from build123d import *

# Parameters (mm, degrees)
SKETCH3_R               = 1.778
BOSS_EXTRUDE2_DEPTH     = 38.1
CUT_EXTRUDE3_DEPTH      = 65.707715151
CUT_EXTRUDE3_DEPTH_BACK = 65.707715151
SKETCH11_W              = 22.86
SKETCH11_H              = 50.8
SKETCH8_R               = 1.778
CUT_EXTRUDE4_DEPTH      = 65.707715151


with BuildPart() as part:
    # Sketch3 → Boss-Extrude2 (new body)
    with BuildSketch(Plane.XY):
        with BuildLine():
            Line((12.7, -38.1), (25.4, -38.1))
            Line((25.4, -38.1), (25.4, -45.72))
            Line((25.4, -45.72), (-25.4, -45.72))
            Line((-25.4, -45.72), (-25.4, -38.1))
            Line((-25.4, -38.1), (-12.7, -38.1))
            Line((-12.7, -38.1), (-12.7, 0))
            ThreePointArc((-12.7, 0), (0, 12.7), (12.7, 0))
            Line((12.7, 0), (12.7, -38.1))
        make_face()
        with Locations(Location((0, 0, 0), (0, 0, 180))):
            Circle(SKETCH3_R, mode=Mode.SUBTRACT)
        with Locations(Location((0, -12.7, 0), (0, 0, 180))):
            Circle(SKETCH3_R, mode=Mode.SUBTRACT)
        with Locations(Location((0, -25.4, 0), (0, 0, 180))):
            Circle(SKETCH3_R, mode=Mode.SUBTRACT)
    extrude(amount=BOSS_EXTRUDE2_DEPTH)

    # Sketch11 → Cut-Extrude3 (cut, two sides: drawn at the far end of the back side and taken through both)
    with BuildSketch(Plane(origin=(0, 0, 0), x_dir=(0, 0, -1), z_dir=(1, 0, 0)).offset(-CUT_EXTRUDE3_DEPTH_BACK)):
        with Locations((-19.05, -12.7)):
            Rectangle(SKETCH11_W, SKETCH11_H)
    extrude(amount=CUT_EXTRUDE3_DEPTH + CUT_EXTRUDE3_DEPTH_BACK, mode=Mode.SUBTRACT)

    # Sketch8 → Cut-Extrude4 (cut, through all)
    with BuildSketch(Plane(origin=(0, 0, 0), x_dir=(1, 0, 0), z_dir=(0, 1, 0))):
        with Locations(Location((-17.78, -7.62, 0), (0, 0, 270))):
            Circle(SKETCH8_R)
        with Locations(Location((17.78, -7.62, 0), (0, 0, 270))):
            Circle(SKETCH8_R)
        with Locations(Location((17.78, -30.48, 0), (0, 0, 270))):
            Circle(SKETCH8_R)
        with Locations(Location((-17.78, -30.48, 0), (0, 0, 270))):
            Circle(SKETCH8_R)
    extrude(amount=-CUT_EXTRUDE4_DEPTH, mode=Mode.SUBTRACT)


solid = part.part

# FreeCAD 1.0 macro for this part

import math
import FreeCAD as App
import Part
import Sketcher
Q = App.Units.Quantity


def add_polygon(sketch, points):
    """Adds a closed chain of lines whose ends are joined by coincident constraints."""
    first, n = sketch.GeometryCount, len(points)
    for a, b in zip(points, points[1:] + points[:1]):
        sketch.addGeometry(Part.LineSegment(App.Vector(*a, 0), App.Vector(*b, 0)), False)
    for i in range(n):
        sketch.addConstraint(Sketcher.Constraint("Coincident", first + i, 2, first + (i + 1) % n, 1))

doc = App.newDocument("Part")
body = doc.addObject("PartDesign::Body", "Body")

# Sketch on XY plane
sketch1 = body.newObject("Sketcher::SketchObject", "Sketch")
sketch1.AttachmentSupport = (doc.getObject("XY_Plane"), [""])
sketch1.MapMode = "FlatFace"
sketch1.addGeometry([
    Part.LineSegment(App.Vector(25.4, -38.1, 0), App.Vector(12.7, -38.1, 0)),  # 0
    Part.LineSegment(App.Vector(12.7, -38.1, 0), App.Vector(12.7, 0, 0)),  # 1
    Part.ArcOfCircle(Part.Circle(App.Vector(0, 0, 0), App.Vector(0, 0, 1), 12.7), math.radians(0), math.radians(180)),  # 2
    Part.LineSegment(App.Vector(-12.7, 0, 0), App.Vector(-12.7, -38.1, 0)),  # 3
    Part.LineSegment(App.Vector(-12.7, -38.1, 0), App.Vector(-25.4, -38.1, 0)),  # 4
    Part.LineSegment(App.Vector(-25.4, -38.1, 0), App.Vector(-25.4, -45.7, 0)),  # 5
    Part.LineSegment(App.Vector(-25.4, -45.7, 0), App.Vector(25.4, -45.7, 0)),  # 6
    Part.LineSegment(App.Vector(25.4, -45.7, 0), App.Vector(25.4, -38.1, 0)),  # 7
    Part.Circle(App.Vector(0, -25.4, 0), App.Vector(0, 0, 1), 1.8),  # 8
    Part.Circle(App.Vector(0, -12.7, 0), App.Vector(0, 0, 1), 1.8),  # 9
    Part.Circle(App.Vector(0, 0, 0), App.Vector(0, 0, 1), 1.8),  # 10
], False)
sketch1.addConstraint([
    Sketcher.Constraint("Coincident", 0, 2, 1, 1),
    Sketcher.Constraint("Tangent", 1, 2, 2, 1),
    Sketcher.Constraint("Tangent", 2, 2, 3, 1),
    Sketcher.Constraint("Coincident", 3, 2, 4, 1),
    Sketcher.Constraint("Coincident", 4, 2, 5, 1),
    Sketcher.Constraint("Coincident", 5, 2, 6, 1),
    Sketcher.Constraint("Coincident", 6, 2, 7, 1),
    Sketcher.Constraint("Coincident", 7, 2, 0, 1),
    Sketcher.Constraint("Horizontal", 0),
    Sketcher.Constraint("Vertical", 1),
    Sketcher.Constraint("Vertical", 3),
    Sketcher.Constraint("Horizontal", 4),
    Sketcher.Constraint("Vertical", 5),
    Sketcher.Constraint("Horizontal", 6),
    Sketcher.Constraint("Vertical", 7),
    Sketcher.Constraint("Coincident", 2, 3, -1, 1),
    Sketcher.Constraint("Coincident", 10, 3, -1, 1),
    Sketcher.Constraint("Equal", 8, 9),
    Sketcher.Constraint("Equal", 9, 10),
    Sketcher.Constraint("Symmetric", 4, 2, 7, 2, -2),
    Sketcher.Constraint("PointOnObject", 8, 3, -2),
    Sketcher.Constraint("PointOnObject", 9, 3, -2),
    Sketcher.Constraint("Radius", 2, Q("0.5 in")),
    Sketcher.Constraint("Diameter", 8, Q("0.14 in")),
    Sketcher.Constraint("DistanceX", 6, 1, 6, 2, Q("2 in")),
    Sketcher.Constraint("DistanceY", 1, 1, 1, 2, Q("1.5 in")),
    Sketcher.Constraint("DistanceY", 5, 2, 5, 1, Q("0.3 in")),
    Sketcher.Constraint("DistanceY", 8, 3, -1, 1, Q("1 in")),
    Sketcher.Constraint("DistanceY", 0, 2, 9, 3, Q("1 in")),
])
pad1 = body.newObject("PartDesign::Pad", "Pad")
pad1.Profile = sketch1
pad1.Length = Q("1.5 in")

# Sketch on YZ plane
sketch2 = body.newObject("Sketcher::SketchObject", "Sketch001")
sketch2.AttachmentSupport = (doc.getObject("YZ_Plane"), [""])
sketch2.MapMode = "FlatFace"
add_polygon(sketch2, [(13, 30), (-38, 30), (-38, 8), (13, 8)])  # lines 0-3
sketch2.addConstraint([
    Sketcher.Constraint("Horizontal", 0),
    Sketcher.Constraint("Vertical", 1),
    Sketcher.Constraint("Horizontal", 2),
    Sketcher.Constraint("Vertical", 3),
    Sketcher.Constraint("DistanceX", 0, 2, 0, 1, Q("2 in")),
    Sketcher.Constraint("DistanceY", 1, 2, 1, 1, Q("0.9 in")),
    Sketcher.Constraint("DistanceX", 0, 2, -1, 1, Q("1.5 in")),
    Sketcher.Constraint("DistanceY", -1, 1, 0, 2, Q("1.2 in")),
])
pocket1 = body.newObject("PartDesign::Pocket", "Pocket")
pocket1.Profile = sketch2
pocket1.Type = "ThroughAll"
pocket1.Midplane = True

# Sketch on XZ plane
sketch3 = body.newObject("Sketcher::SketchObject", "Sketch002")
sketch3.AttachmentSupport = (doc.getObject("XZ_Plane"), [""])
sketch3.MapMode = "FlatFace"
sketch3.addGeometry([
    Part.Circle(App.Vector(-17.8, 7.6, 0), App.Vector(0, 0, 1), 1.8),
    Part.Circle(App.Vector(17.8, 7.6, 0), App.Vector(0, 0, 1), 1.8),
    Part.Circle(App.Vector(17.8, 30.5, 0), App.Vector(0, 0, 1), 1.8),
    Part.Circle(App.Vector(-17.8, 30.5, 0), App.Vector(0, 0, 1), 1.8),
], False)
sketch3.addConstraint([
    Sketcher.Constraint("Equal", 0, 1),
    Sketcher.Constraint("Equal", 1, 2),
    Sketcher.Constraint("Equal", 2, 3),
    Sketcher.Constraint("Symmetric", 0, 3, 1, 3, -2),
    Sketcher.Constraint("Symmetric", 2, 3, 3, 3, -2),
    Sketcher.Constraint("Vertical", 1, 3, 2, 3),
    Sketcher.Constraint("Diameter", 0, Q("0.14 in")),
    Sketcher.Constraint("DistanceX", 0, 3, -1, 1, Q("0.7 in")),
    Sketcher.Constraint("DistanceY", -1, 1, 0, 3, Q("0.3 in")),
    Sketcher.Constraint("DistanceY", -1, 1, 2, 3, Q("1.2 in")),
])
pocket2 = body.newObject("PartDesign::Pocket", "Pocket001")
pocket2.Profile = sketch3
pocket2.Type = "ThroughAll"
pocket2.Reversed = True

doc.recompute()
